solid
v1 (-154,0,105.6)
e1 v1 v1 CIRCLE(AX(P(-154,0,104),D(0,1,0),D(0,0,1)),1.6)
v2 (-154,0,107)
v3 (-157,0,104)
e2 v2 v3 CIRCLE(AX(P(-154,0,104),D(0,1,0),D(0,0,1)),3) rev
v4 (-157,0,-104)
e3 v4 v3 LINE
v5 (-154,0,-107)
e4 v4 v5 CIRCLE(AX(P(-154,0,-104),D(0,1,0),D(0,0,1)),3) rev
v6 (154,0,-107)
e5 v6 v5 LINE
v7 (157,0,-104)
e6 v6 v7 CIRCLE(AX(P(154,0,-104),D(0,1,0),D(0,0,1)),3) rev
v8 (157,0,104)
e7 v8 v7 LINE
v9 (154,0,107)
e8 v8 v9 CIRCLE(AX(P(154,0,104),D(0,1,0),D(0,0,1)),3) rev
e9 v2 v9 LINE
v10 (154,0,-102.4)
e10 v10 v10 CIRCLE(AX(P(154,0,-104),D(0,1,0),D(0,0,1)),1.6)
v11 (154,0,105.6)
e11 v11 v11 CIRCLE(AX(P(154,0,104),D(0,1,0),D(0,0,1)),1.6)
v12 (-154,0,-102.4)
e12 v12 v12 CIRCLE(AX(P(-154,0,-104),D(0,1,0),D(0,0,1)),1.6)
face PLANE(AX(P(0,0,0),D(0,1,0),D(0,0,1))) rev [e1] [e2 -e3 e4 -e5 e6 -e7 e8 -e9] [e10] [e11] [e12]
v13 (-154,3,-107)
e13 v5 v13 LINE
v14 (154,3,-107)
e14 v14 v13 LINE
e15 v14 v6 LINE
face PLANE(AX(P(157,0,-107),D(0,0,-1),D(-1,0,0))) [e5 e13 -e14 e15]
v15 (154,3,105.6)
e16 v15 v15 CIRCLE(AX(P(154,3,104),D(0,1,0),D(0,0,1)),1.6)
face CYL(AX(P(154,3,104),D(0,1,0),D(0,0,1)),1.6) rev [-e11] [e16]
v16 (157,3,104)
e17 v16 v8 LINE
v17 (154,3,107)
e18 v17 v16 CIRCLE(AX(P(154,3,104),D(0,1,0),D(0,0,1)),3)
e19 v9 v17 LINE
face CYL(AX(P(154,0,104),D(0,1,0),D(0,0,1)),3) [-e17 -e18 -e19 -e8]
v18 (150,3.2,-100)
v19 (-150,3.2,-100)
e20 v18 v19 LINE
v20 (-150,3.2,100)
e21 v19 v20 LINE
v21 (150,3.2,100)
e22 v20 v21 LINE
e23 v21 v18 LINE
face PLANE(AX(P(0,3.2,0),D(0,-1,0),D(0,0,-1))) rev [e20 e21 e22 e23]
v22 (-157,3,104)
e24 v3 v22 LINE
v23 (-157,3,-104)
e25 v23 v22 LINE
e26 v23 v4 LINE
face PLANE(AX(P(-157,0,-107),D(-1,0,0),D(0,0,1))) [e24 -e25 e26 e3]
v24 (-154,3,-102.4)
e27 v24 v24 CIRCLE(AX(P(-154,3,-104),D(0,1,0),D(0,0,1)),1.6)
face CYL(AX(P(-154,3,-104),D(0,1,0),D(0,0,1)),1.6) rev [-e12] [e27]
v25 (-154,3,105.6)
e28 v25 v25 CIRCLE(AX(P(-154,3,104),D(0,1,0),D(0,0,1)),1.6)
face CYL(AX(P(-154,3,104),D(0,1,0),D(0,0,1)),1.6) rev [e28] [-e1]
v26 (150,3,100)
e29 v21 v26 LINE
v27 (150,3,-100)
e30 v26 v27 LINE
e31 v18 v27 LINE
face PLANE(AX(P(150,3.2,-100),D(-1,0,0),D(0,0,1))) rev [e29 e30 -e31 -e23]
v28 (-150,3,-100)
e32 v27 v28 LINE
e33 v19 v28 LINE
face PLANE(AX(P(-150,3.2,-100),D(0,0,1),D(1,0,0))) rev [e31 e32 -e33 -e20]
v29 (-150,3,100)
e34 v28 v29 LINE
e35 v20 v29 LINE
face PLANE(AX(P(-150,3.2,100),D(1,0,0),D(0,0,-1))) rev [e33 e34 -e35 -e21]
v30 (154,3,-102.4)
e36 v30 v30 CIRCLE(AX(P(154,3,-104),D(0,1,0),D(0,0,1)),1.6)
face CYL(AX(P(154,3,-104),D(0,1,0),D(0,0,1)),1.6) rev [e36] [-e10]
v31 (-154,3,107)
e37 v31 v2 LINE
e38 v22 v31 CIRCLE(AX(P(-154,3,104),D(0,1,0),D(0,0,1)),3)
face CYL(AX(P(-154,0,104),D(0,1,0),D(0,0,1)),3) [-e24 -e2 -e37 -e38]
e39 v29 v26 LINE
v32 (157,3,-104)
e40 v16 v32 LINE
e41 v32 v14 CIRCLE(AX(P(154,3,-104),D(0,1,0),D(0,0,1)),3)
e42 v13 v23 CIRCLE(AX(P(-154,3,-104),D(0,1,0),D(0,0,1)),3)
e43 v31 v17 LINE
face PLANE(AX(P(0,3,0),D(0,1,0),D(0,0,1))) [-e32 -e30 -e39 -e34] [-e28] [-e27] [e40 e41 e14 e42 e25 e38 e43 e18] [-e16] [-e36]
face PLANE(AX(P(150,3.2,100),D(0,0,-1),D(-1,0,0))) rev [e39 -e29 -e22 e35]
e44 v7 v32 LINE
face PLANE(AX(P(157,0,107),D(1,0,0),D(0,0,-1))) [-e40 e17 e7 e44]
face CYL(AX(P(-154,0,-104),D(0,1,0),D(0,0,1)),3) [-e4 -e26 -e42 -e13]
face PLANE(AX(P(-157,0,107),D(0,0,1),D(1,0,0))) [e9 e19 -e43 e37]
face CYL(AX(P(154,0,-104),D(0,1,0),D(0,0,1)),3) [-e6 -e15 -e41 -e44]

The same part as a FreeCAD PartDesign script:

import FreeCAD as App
import Part
import Sketcher

V = App.Vector


def edges_at(feature, points):
    """Names of the edges that pass closest to the given points."""
    edges = feature.Shape.Edges
    near = lambda p: min(range(len(edges)), key=lambda i: edges[i].distToShape(Part.Vertex(*p))[0])
    return sorted({f"Edge{near(p) + 1}" for p in points})

doc = App.newDocument("Part")
params = doc.addObject("Spreadsheet::Sheet", "Params")
for row, (alias, value) in enumerate([
    ("sketch1_width", "314 mm"),
    ("sketch1_height", "214 mm"),
    ("pad1_length", "3 mm"),
    ("sketch2_width", "300 mm"),
    ("sketch2_height", "200 mm"),
    ("pad2_length", "0.2 mm"),
    ("sketch3_diameter", "3.2 mm"),
    ("hole_diameter", "3.2 mm"),
    ("hole_depth", "3 mm"),
    ("fillet_radius", "3 mm"),
], start=1):
    params.set(f"A{row}", alias)
    params.set(f"B{row}", "=" + value)
    params.setAlias(f"B{row}", alias)

body = doc.addObject("PartDesign::Body", "Body")

# Sketch on XZ plane
sketch1 = doc.addObject("Sketcher::SketchObject", "Sketch")
body.addObject(sketch1)
sketch1.AttachmentSupport = (doc.XZ_Plane, [""])
sketch1.MapMode = "FlatFace"
sketch1.AttachmentOffset = App.Placement(V(0, 0, -3), App.Rotation())
sketch1.addGeometry(Part.LineSegment(V(-157, -107, 0), V(-157, 107, 0)), False)
sketch1.addGeometry(Part.LineSegment(V(-157, 107, 0), V(157, 107, 0)), False)
sketch1.addGeometry(Part.LineSegment(V(157, 107, 0), V(157, -107, 0)), False)
sketch1.addGeometry(Part.LineSegment(V(157, -107, 0), V(-157, -107, 0)), False)
sketch1.addConstraint(Sketcher.Constraint("Coincident", 0, 2, 1, 1))
sketch1.addConstraint(Sketcher.Constraint("Coincident", 1, 2, 2, 1))
sketch1.addConstraint(Sketcher.Constraint("Coincident", 2, 2, 3, 1))
sketch1.addConstraint(Sketcher.Constraint("Coincident", 3, 2, 0, 1))
sketch1.addConstraint(Sketcher.Constraint("Vertical", 0))
sketch1.addConstraint(Sketcher.Constraint("Horizontal", 1))
sketch1.addConstraint(Sketcher.Constraint("Vertical", 2))
sketch1.addConstraint(Sketcher.Constraint("Horizontal", 3))
sketch1.addConstraint(Sketcher.Constraint("Symmetric", 0, 2, 2, 2, -1, 1))
sketch1.addConstraint(Sketcher.Constraint("DistanceX", 1, 1, 1, 2, 314.0))
sketch1.addConstraint(Sketcher.Constraint("DistanceY", 0, 1, 0, 2, 214.0))
sketch1.setExpression("Constraints[9]", "Params.sketch1_width")
sketch1.setExpression("Constraints[10]", "Params.sketch1_height")
pad1 = doc.addObject("PartDesign::Pad", "Pad")
body.addObject(pad1)
pad1.Profile = sketch1
pad1.setExpression("Length", "Params.pad1_length")

# Sketch on XZ plane
sketch2 = doc.addObject("Sketcher::SketchObject", "Sketch001")
body.addObject(sketch2)
sketch2.AttachmentSupport = (doc.XZ_Plane, [""])
sketch2.MapMode = "FlatFace"
sketch2.AttachmentOffset = App.Placement(V(0, 0, -3), App.Rotation())
sketch2.addGeometry(Part.LineSegment(V(150, 100, 0), V(150, -100, 0)), False)
sketch2.addGeometry(Part.LineSegment(V(150, -100, 0), V(-150, -100, 0)), False)
sketch2.addGeometry(Part.LineSegment(V(-150, -100, 0), V(-150, 100, 0)), False)
sketch2.addGeometry(Part.LineSegment(V(-150, 100, 0), V(150, 100, 0)), False)
sketch2.addConstraint(Sketcher.Constraint("Coincident", 0, 2, 1, 1))
sketch2.addConstraint(Sketcher.Constraint("Coincident", 1, 2, 2, 1))
sketch2.addConstraint(Sketcher.Constraint("Coincident", 2, 2, 3, 1))
sketch2.addConstraint(Sketcher.Constraint("Coincident", 3, 2, 0, 1))
sketch2.addConstraint(Sketcher.Constraint("Vertical", 0))
sketch2.addConstraint(Sketcher.Constraint("Horizontal", 1))
sketch2.addConstraint(Sketcher.Constraint("Vertical", 2))
sketch2.addConstraint(Sketcher.Constraint("Horizontal", 3))
sketch2.addConstraint(Sketcher.Constraint("Symmetric", 0, 2, 2, 2, -1, 1))
sketch2.addConstraint(Sketcher.Constraint("DistanceX", 1, 2, 1, 1, 300.0))
sketch2.addConstraint(Sketcher.Constraint("DistanceY", 0, 2, 0, 1, 200.0))
sketch2.setExpression("Constraints[9]", "Params.sketch2_width")
sketch2.setExpression("Constraints[10]", "Params.sketch2_height")
pad2 = doc.addObject("PartDesign::Pad", "Pad001")
body.addObject(pad2)
pad2.Profile = sketch2
pad2.setExpression("Length", "Params.pad2_length")
pad2.Reversed = True

# Sketch on XZ plane
sketch3 = doc.addObject("Sketcher::SketchObject", "Sketch002")
body.addObject(sketch3)
sketch3.AttachmentSupport = (doc.XZ_Plane, [""])
sketch3.MapMode = "FlatFace"
sketch3.AttachmentOffset = App.Placement(V(0, 0, -3), App.Rotation())
sketch3.addGeometry(Part.Circle(V(154, 104, 0), V(0, 0, 1), 1.6), False)
sketch3.addGeometry(Part.Circle(V(-154, 104, 0), V(0, 0, 1), 1.6), False)
sketch3.addGeometry(Part.Circle(V(154, -104, 0), V(0, 0, 1), 1.6), False)
sketch3.addGeometry(Part.Circle(V(-154, -104, 0), V(0, 0, 1), 1.6), False)
sketch3.addConstraint(Sketcher.Constraint("Equal", 0, 1))
sketch3.addConstraint(Sketcher.Constraint("Equal", 1, 2))
sketch3.addConstraint(Sketcher.Constraint("Equal", 2, 3))
sketch3.addConstraint(Sketcher.Constraint("Symmetric", 1, 3, 2, 3, -1, 1))
sketch3.addConstraint(Sketcher.Constraint("Symmetric", 0, 3, 3, 3, -1, 1))
sketch3.addConstraint(Sketcher.Constraint("Symmetric", 0, 3, 1, 3, -2))
sketch3.addConstraint(Sketcher.Constraint("Diameter", 0, 3.2))
sketch3.addConstraint(Sketcher.Constraint("DistanceX", -1, 1, 0, 3, 154.0))
sketch3.addConstraint(Sketcher.Constraint("DistanceY", -1, 1, 0, 3, 104.0))
sketch3.setExpression("Constraints[6]", "Params.sketch3_diameter")
doc.recompute()
hole = doc.addObject("PartDesign::Hole", "Hole")
body.addObject(hole)
hole.Profile = sketch3
hole.ThreadType = "None"
hole.setExpression("Diameter", "Params.hole_diameter")
hole.DepthType = "Dimension"
hole.setExpression("Depth", "Params.hole_depth")
hole.DrillPoint = "Flat"
hole.Reversed = True
doc.recompute()

fillet = doc.addObject("PartDesign::Fillet", "Fillet")
body.addObject(fillet)
fillet.Base = (hole, edges_at(hole, [
    (157, 1.5, 107),
    (-157, 1.5, 107),
    (-157, 1.5, -107),
    (157, 1.5, -107),
]))
fillet.setExpression("Radius", "Params.fillet_radius")

doc.recompute()
